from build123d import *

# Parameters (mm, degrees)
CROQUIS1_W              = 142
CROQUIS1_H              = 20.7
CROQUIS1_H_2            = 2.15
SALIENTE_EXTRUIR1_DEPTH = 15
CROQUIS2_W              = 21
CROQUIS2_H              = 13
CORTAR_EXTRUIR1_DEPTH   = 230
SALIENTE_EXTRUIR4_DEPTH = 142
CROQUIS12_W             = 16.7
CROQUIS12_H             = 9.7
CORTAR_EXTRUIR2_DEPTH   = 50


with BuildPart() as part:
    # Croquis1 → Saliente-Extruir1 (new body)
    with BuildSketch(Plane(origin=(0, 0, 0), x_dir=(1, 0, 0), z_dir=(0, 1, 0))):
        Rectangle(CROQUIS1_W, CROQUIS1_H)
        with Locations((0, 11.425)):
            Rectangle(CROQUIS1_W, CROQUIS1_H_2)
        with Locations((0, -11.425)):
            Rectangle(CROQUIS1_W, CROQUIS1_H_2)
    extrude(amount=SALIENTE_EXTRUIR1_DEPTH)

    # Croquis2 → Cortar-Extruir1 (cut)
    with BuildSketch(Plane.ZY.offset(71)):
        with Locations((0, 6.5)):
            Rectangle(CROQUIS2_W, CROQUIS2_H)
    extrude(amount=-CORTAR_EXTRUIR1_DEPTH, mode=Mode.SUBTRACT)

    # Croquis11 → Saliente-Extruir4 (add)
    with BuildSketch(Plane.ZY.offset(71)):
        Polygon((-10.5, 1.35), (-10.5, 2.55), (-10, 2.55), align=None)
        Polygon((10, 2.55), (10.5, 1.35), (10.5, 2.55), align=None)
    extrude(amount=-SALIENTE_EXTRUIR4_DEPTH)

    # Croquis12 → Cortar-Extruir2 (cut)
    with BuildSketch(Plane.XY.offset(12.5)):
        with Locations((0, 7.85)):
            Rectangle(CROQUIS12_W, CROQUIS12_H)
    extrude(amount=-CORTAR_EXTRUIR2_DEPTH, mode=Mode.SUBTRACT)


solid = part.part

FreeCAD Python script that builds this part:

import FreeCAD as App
import Part
import Sketcher

doc = App.newDocument("Part")
body = doc.addObject("PartDesign::Body", "Body")

# Sketch on XZ plane
sketch1 = body.newObject("Sketcher::SketchObject", "Sketch")
sketch1.AttachmentSupport = (doc.getObject("XZ_Plane"), [""])
sketch1.MapMode = "FlatFace"
sketch1.addGeometry(Part.LineSegment(App.Vector(71, -12.5, 0), App.Vector(-71, -12.5, 0)), False)
sketch1.addGeometry(Part.LineSegment(App.Vector(-71, -12.5, 0), App.Vector(-71, 12.5, 0)), False)
sketch1.addGeometry(Part.LineSegment(App.Vector(-71, 12.5, 0), App.Vector(71, 12.5, 0)), False)
sketch1.addGeometry(Part.LineSegment(App.Vector(71, 12.5, 0), App.Vector(71, -12.5, 0)), False)
sketch1.addConstraint(Sketcher.Constraint("Coincident", 0, 2, 1, 1))
sketch1.addConstraint(Sketcher.Constraint("Coincident", 1, 2, 2, 1))
sketch1.addConstraint(Sketcher.Constraint("Coincident", 2, 2, 3, 1))
sketch1.addConstraint(Sketcher.Constraint("Coincident", 3, 2, 0, 1))
sketch1.addConstraint(Sketcher.Constraint("Horizontal", 0))
sketch1.addConstraint(Sketcher.Constraint("Vertical", 1))
sketch1.addConstraint(Sketcher.Constraint("Horizontal", 2))
sketch1.addConstraint(Sketcher.Constraint("Vertical", 3))
sketch1.addConstraint(Sketcher.Constraint("Symmetric", 0, 2, 2, 2, -1, 1))
sketch1.addConstraint(Sketcher.Constraint("DistanceX", 0, 2, 0, 1, 142.0))
sketch1.addConstraint(Sketcher.Constraint("DistanceY", 1, 1, 1, 2, 25.0))
pad1 = body.newObject("PartDesign::Pad", "Pad")
pad1.Profile = sketch1
pad1.Length = 15
pad1.Reversed = True

# Sketch on YZ plane
sketch2 = body.newObject("Sketcher::SketchObject", "Sketch001")
sketch2.AttachmentSupport = (doc.getObject("YZ_Plane"), [""])
sketch2.MapMode = "FlatFace"
sketch2.AttachmentOffset = App.Placement(App.Vector(0, 0, -71), App.Rotation())
sketch2.addGeometry(Part.LineSegment(App.Vector(13, -10.5, 0), App.Vector(0, -10.5, 0)), False)
sketch2.addGeometry(Part.LineSegment(App.Vector(0, -10.5, 0), App.Vector(0, 10.5, 0)), False)
sketch2.addGeometry(Part.LineSegment(App.Vector(0, 10.5, 0), App.Vector(13, 10.5, 0)), False)
sketch2.addGeometry(Part.LineSegment(App.Vector(13, 10.5, 0), App.Vector(13, -10.5, 0)), False)
sketch2.addConstraint(Sketcher.Constraint("Coincident", 0, 2, 1, 1))
sketch2.addConstraint(Sketcher.Constraint("Coincident", 1, 2, 2, 1))
sketch2.addConstraint(Sketcher.Constraint("Coincident", 2, 2, 3, 1))
sketch2.addConstraint(Sketcher.Constraint("Coincident", 3, 2, 0, 1))
sketch2.addConstraint(Sketcher.Constraint("Horizontal", 0))
sketch2.addConstraint(Sketcher.Constraint("Vertical", 1))
sketch2.addConstraint(Sketcher.Constraint("Horizontal", 2))
sketch2.addConstraint(Sketcher.Constraint("Vertical", 3))
sketch2.addConstraint(Sketcher.Constraint("Symmetric", 0, 2, 1, 2, -1, 1))
sketch2.addConstraint(Sketcher.Constraint("DistanceX", 0, 2, 0, 1, 13.0))
sketch2.addConstraint(Sketcher.Constraint("DistanceY", 1, 1, 1, 2, 21.0))
pocket1 = body.newObject("PartDesign::Pocket", "Pocket")
pocket1.Profile = sketch2
pocket1.Length = 230
pocket1.Reversed = True

# Sketch on YZ plane
sketch3 = body.newObject("Sketcher::SketchObject", "Sketch002")
sketch3.AttachmentSupport = (doc.getObject("YZ_Plane"), [""])
sketch3.MapMode = "FlatFace"
sketch3.AttachmentOffset = App.Placement(App.Vector(0, 0, -71), App.Rotation())
sketch3.addGeometry(Part.LineSegment(App.Vector(2.55, -10.5, 0), App.Vector(1.35, -10.5, 0)), False)
sketch3.addGeometry(Part.LineSegment(App.Vector(1.35, -10.5, 0), App.Vector(2.55, -10, 0)), False)
sketch3.addGeometry(Part.LineSegment(App.Vector(2.55, -10, 0), App.Vector(2.55, -10.5, 0)), False)
sketch3.addGeometry(Part.LineSegment(App.Vector(2.55, 10, 0), App.Vector(1.35, 10.5, 0)), False)
sketch3.addGeometry(Part.LineSegment(App.Vector(1.35, 10.5, 0), App.Vector(2.55, 10.5, 0)), False)
sketch3.addGeometry(Part.LineSegment(App.Vector(2.55, 10.5, 0), App.Vector(2.55, 10, 0)), False)
sketch3.addConstraint(Sketcher.Constraint("Coincident", 0, 2, 1, 1))
sketch3.addConstraint(Sketcher.Constraint("Coincident", 1, 2, 2, 1))
sketch3.addConstraint(Sketcher.Constraint("Coincident", 2, 2, 0, 1))
sketch3.addConstraint(Sketcher.Constraint("Coincident", 3, 2, 4, 1))
sketch3.addConstraint(Sketcher.Constraint("Coincident", 4, 2, 5, 1))
sketch3.addConstraint(Sketcher.Constraint("Coincident", 5, 2, 3, 1))
sketch3.addConstraint(Sketcher.Constraint("Horizontal", 0))
sketch3.addConstraint(Sketcher.Constraint("Vertical", 2))
sketch3.addConstraint(Sketcher.Constraint("Horizontal", 4))
sketch3.addConstraint(Sketcher.Constraint("Vertical", 5))
sketch3.addConstraint(Sketcher.Constraint("Symmetric", 0, 2, 3, 2, -1))
sketch3.addConstraint(Sketcher.Constraint("Symmetric", 1, 2, 5, 2, -1))
sketch3.addConstraint(Sketcher.Constraint("DistanceX", 0, 2, 0, 1, 1.2))
sketch3.addConstraint(Sketcher.Constraint("DistanceY", 2, 2, 2, 1, 0.5))
sketch3.addConstraint(Sketcher.Constraint("DistanceY", 1, 2, -1, 1, 10.0))
sketch3.addConstraint(Sketcher.Constraint("DistanceX", -1, 1, 0, 2, 1.35))
pad2 = body.newObject("PartDesign::Pad", "Pad001")
pad2.Profile = sketch3
pad2.Length = 142

# Sketch on XY plane
sketch4 = body.newObject("Sketcher::SketchObject", "Sketch003")
sketch4.AttachmentSupport = (doc.getObject("XY_Plane"), [""])
sketch4.MapMode = "FlatFace"
sketch4.AttachmentOffset = App.Placement(App.Vector(0, 0, 12.5), App.Rotation())
sketch4.addGeometry(Part.LineSegment(App.Vector(-8.35, 12.7, 0), App.Vector(-8.35, 3, 0)), False)
sketch4.addGeometry(Part.LineSegment(App.Vector(-8.35, 3, 0), App.Vector(8.35, 3, 0)), False)
sketch4.addGeometry(Part.LineSegment(App.Vector(8.35, 3, 0), App.Vector(8.35, 12.7, 0)), False)
sketch4.addGeometry(Part.LineSegment(App.Vector(8.35, 12.7, 0), App.Vector(-8.35, 12.7, 0)), False)
sketch4.addConstraint(Sketcher.Constraint("Coincident", 0, 2, 1, 1))
sketch4.addConstraint(Sketcher.Constraint("Coincident", 1, 2, 2, 1))
sketch4.addConstraint(Sketcher.Constraint("Coincident", 2, 2, 3, 1))
sketch4.addConstraint(Sketcher.Constraint("Coincident", 3, 2, 0, 1))
sketch4.addConstraint(Sketcher.Constraint("Vertical", 0))
sketch4.addConstraint(Sketcher.Constraint("Horizontal", 1))
sketch4.addConstraint(Sketcher.Constraint("Vertical", 2))
sketch4.addConstraint(Sketcher.Constraint("Horizontal", 3))
sketch4.addConstraint(Sketcher.Constraint("DistanceX", 1, 1, 1, 2, 16.7))
sketch4.addConstraint(Sketcher.Constraint("DistanceY", 0, 2, 0, 1, 9.7))
sketch4.addConstraint(Sketcher.Constraint("DistanceY", -1, 1, 0, 2, 3.0))
sketch4.addConstraint(Sketcher.Constraint("DistanceX", 0, 2, -1, 1, 8.35))
pocket2 = body.newObject("PartDesign::Pocket", "Pocket001")
pocket2.Profile = sketch4
pocket2.Length = 50

doc.recompute()
